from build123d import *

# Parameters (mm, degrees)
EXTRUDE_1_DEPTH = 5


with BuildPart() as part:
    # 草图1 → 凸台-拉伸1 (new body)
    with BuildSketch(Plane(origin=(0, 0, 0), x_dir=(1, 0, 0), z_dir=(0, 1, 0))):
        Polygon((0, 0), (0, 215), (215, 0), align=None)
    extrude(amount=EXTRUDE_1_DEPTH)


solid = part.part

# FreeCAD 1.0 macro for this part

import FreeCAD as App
import Part
import Sketcher

doc = App.newDocument("Part")
body = doc.addObject("PartDesign::Body", "Body")

# Sketch on XZ plane
sketch1 = body.newObject("Sketcher::SketchObject", "Sketch")
sketch1.AttachmentSupport = (doc.getObject("XZ_Plane"), [""])
sketch1.MapMode = "FlatFace"
sketch1.addGeometry([
    Part.LineSegment(App.Vector(0, -215, 0), App.Vector(0, 0, 0)),
    Part.LineSegment(App.Vector(0, 0, 0), App.Vector(215, 0, 0)),
    Part.LineSegment(App.Vector(215, 0, 0), App.Vector(0, -215, 0)),
], False)
sketch1.addConstraint([
    Sketcher.Constraint("Coincident", 0, 2, 1, 1),
    Sketcher.Constraint("Coincident", 1, 2, 2, 1),
    Sketcher.Constraint("Coincident", 2, 2, 0, 1),
    Sketcher.Constraint("Vertical", 0),
    Sketcher.Constraint("Horizontal", 1),
    Sketcher.Constraint("Coincident", 0, 2, -1, 1),
    Sketcher.Constraint("Equal", 1, 0),
    Sketcher.Constraint("DistanceX", 1, 1, 1, 2, 215.0),
])
pad1 = body.newObject("PartDesign::Pad", "Pad")
pad1.Profile = sketch1
pad1.Length = 5
pad1.Reversed = True

doc.recompute()
